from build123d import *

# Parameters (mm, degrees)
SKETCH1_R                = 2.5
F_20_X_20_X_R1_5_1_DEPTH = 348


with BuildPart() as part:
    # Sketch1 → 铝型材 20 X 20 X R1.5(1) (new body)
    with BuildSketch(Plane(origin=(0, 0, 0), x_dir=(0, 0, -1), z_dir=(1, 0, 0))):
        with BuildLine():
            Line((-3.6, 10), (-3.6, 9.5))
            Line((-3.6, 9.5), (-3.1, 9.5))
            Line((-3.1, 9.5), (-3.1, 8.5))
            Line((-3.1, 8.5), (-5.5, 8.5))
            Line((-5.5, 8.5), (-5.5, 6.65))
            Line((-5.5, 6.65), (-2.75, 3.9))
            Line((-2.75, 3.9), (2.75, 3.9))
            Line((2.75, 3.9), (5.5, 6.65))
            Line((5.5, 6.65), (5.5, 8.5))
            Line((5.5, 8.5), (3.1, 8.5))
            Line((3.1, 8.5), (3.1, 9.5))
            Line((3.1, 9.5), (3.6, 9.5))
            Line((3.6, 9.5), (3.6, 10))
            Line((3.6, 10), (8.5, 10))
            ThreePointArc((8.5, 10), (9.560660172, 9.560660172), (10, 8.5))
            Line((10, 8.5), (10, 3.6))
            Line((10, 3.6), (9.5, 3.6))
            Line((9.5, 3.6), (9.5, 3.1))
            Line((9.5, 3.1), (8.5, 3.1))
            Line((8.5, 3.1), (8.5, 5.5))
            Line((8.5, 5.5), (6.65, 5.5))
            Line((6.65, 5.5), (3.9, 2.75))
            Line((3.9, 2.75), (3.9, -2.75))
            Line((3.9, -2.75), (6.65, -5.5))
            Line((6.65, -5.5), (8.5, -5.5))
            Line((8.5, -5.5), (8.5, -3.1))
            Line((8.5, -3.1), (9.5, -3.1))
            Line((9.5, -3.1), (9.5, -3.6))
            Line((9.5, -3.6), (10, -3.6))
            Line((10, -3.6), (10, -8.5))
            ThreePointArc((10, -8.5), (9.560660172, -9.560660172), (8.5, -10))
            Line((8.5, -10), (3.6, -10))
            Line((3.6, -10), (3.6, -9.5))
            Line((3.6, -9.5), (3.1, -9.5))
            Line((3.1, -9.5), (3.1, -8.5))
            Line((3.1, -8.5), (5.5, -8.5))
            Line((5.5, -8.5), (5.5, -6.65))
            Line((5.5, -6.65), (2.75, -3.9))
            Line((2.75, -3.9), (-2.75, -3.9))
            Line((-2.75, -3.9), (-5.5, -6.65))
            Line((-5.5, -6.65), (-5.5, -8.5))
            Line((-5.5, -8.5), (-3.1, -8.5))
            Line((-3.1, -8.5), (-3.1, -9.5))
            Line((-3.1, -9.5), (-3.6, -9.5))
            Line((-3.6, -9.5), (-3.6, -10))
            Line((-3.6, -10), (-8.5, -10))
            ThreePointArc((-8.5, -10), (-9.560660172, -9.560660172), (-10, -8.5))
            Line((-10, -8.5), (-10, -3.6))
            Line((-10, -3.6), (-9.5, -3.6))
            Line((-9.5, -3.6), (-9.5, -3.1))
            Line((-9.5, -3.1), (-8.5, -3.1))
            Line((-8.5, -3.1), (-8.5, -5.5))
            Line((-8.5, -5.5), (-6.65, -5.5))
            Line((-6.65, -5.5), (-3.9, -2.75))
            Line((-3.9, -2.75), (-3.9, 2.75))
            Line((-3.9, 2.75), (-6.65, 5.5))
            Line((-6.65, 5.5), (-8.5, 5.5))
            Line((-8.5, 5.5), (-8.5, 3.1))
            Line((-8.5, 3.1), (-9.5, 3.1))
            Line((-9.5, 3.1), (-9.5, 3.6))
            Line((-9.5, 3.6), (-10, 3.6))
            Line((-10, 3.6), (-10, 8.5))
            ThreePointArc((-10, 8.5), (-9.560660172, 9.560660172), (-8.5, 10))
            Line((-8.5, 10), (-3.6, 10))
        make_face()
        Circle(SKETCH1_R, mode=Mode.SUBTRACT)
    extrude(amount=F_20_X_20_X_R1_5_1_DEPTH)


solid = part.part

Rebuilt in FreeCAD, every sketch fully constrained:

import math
import FreeCAD as App
import Part
import Sketcher
from FreeCAD import Vector

doc = App.newDocument("Part")
body = doc.addObject("PartDesign::Body", "Body")

sketch1 = body.newObject("Sketcher::SketchObject", "Sketch")
sketch1.AttachmentSupport = (doc.getObject("YZ_Plane"), [""])
sketch1.MapMode = "FlatFace"
sketch1.addGeometry(Part.LineSegment(Vector(9.5, 3.6, 0), Vector(10, 3.6, 0)), False)
sketch1.addGeometry(Part.LineSegment(Vector(10, 3.6, 0), Vector(10, 8.5, 0)), False)
sketch1.addGeometry(Part.ArcOfCircle(Part.Circle(Vector(8.5, 8.5, 0), Vector(0, 0, 1), 1.5), math.radians(0), math.radians(90)), False)
sketch1.addGeometry(Part.LineSegment(Vector(8.5, 10, 0), Vector(3.6, 10, 0)), False)
sketch1.addGeometry(Part.LineSegment(Vector(3.6, 10, 0), Vector(3.6, 9.5, 0)), False)
sketch1.addGeometry(Part.LineSegment(Vector(3.6, 9.5, 0), Vector(3.1, 9.5, 0)), False)
sketch1.addGeometry(Part.LineSegment(Vector(3.1, 9.5, 0), Vector(3.1, 8.5, 0)), False)
sketch1.addGeometry(Part.LineSegment(Vector(3.1, 8.5, 0), Vector(5.5, 8.5, 0)), False)
sketch1.addGeometry(Part.LineSegment(Vector(5.5, 8.5, 0), Vector(5.5, 6.7, 0)), False)
sketch1.addGeometry(Part.LineSegment(Vector(5.5, 6.7, 0), Vector(2.8, 3.9, 0)), False)
sketch1.addGeometry(Part.LineSegment(Vector(2.8, 3.9, 0), Vector(-2.8, 3.9, 0)), False)
sketch1.addGeometry(Part.LineSegment(Vector(-2.8, 3.9, 0), Vector(-5.5, 6.7, 0)), False)
sketch1.addGeometry(Part.LineSegment(Vector(-5.5, 6.7, 0), Vector(-5.5, 8.5, 0)), False)
sketch1.addGeometry(Part.LineSegment(Vector(-5.5, 8.5, 0), Vector(-3.1, 8.5, 0)), False)
sketch1.addGeometry(Part.LineSegment(Vector(-3.1, 8.5, 0), Vector(-3.1, 9.5, 0)), False)
sketch1.addGeometry(Part.LineSegment(Vector(-3.1, 9.5, 0), Vector(-3.6, 9.5, 0)), False)
sketch1.addGeometry(Part.LineSegment(Vector(-3.6, 9.5, 0), Vector(-3.6, 10, 0)), False)
sketch1.addGeometry(Part.LineSegment(Vector(-3.6, 10, 0), Vector(-8.5, 10, 0)), False)
sketch1.addGeometry(Part.ArcOfCircle(Part.Circle(Vector(-8.5, 8.5, 0), Vector(0, 0, 1), 1.5), math.radians(90), math.radians(180)), False)
sketch1.addGeometry(Part.LineSegment(Vector(-10, 8.5, 0), Vector(-10, 3.6, 0)), False)
sketch1.addGeometry(Part.LineSegment(Vector(-10, 3.6, 0), Vector(-9.5, 3.6, 0)), False)
sketch1.addGeometry(Part.LineSegment(Vector(-9.5, 3.6, 0), Vector(-9.5, 3.1, 0)), False)
sketch1.addGeometry(Part.LineSegment(Vector(-9.5, 3.1, 0), Vector(-8.5, 3.1, 0)), False)
sketch1.addGeometry(Part.LineSegment(Vector(-8.5, 3.1, 0), Vector(-8.5, 5.5, 0)), False)
sketch1.addGeometry(Part.LineSegment(Vector(-8.5, 5.5, 0), Vector(-6.7, 5.5, 0)), False)
sketch1.addGeometry(Part.LineSegment(Vector(-6.7, 5.5, 0), Vector(-3.9, 2.8, 0)), False)
sketch1.addGeometry(Part.LineSegment(Vector(-3.9, 2.8, 0), Vector(-3.9, -2.8, 0)), False)
sketch1.addGeometry(Part.LineSegment(Vector(-3.9, -2.8, 0), Vector(-6.7, -5.5, 0)), False)
sketch1.addGeometry(Part.LineSegment(Vector(-6.7, -5.5, 0), Vector(-8.5, -5.5, 0)), False)
sketch1.addGeometry(Part.LineSegment(Vector(-8.5, -5.5, 0), Vector(-8.5, -3.1, 0)), False)
sketch1.addGeometry(Part.LineSegment(Vector(-8.5, -3.1, 0), Vector(-9.5, -3.1, 0)), False)
sketch1.addGeometry(Part.LineSegment(Vector(-9.5, -3.1, 0), Vector(-9.5, -3.6, 0)), False)
sketch1.addGeometry(Part.LineSegment(Vector(-9.5, -3.6, 0), Vector(-10, -3.6, 0)), False)
sketch1.addGeometry(Part.LineSegment(Vector(-10, -3.6, 0), Vector(-10, -8.5, 0)), False)
sketch1.addGeometry(Part.ArcOfCircle(Part.Circle(Vector(-8.5, -8.5, 0), Vector(0, 0, 1), 1.5), math.radians(180), math.radians(270)), False)
sketch1.addGeometry(Part.LineSegment(Vector(-8.5, -10, 0), Vector(-3.6, -10, 0)), False)
sketch1.addGeometry(Part.LineSegment(Vector(-3.6, -10, 0), Vector(-3.6, -9.5, 0)), False)
sketch1.addGeometry(Part.LineSegment(Vector(-3.6, -9.5, 0), Vector(-3.1, -9.5, 0)), False)
sketch1.addGeometry(Part.LineSegment(Vector(-3.1, -9.5, 0), Vector(-3.1, -8.5, 0)), False)
sketch1.addGeometry(Part.LineSegment(Vector(-3.1, -8.5, 0), Vector(-5.5, -8.5, 0)), False)
sketch1.addGeometry(Part.LineSegment(Vector(-5.5, -8.5, 0), Vector(-5.5, -6.7, 0)), False)
sketch1.addGeometry(Part.LineSegment(Vector(-5.5, -6.7, 0), Vector(-2.8, -3.9, 0)), False)
sketch1.addGeometry(Part.LineSegment(Vector(-2.8, -3.9, 0), Vector(2.8, -3.9, 0)), False)
sketch1.addGeometry(Part.LineSegment(Vector(2.8, -3.9, 0), Vector(5.5, -6.7, 0)), False)
sketch1.addGeometry(Part.LineSegment(Vector(5.5, -6.7, 0), Vector(5.5, -8.5, 0)), False)
sketch1.addGeometry(Part.LineSegment(Vector(5.5, -8.5, 0), Vector(3.1, -8.5, 0)), False)
sketch1.addGeometry(Part.LineSegment(Vector(3.1, -8.5, 0), Vector(3.1, -9.5, 0)), False)
sketch1.addGeometry(Part.LineSegment(Vector(3.1, -9.5, 0), Vector(3.6, -9.5, 0)), False)
sketch1.addGeometry(Part.LineSegment(Vector(3.6, -9.5, 0), Vector(3.6, -10, 0)), False)
sketch1.addGeometry(Part.LineSegment(Vector(3.6, -10, 0), Vector(8.5, -10, 0)), False)
sketch1.addGeometry(Part.ArcOfCircle(Part.Circle(Vector(8.5, -8.5, 0), Vector(0, 0, 1), 1.5), math.radians(-90), math.radians(0)), False)
sketch1.addGeometry(Part.LineSegment(Vector(10, -8.5, 0), Vector(10, -3.6, 0)), False)
sketch1.addGeometry(Part.LineSegment(Vector(10, -3.6, 0), Vector(9.5, -3.6, 0)), False)
sketch1.addGeometry(Part.LineSegment(Vector(9.5, -3.6, 0), Vector(9.5, -3.1, 0)), False)
sketch1.addGeometry(Part.LineSegment(Vector(9.5, -3.1, 0), Vector(8.5, -3.1, 0)), False)
sketch1.addGeometry(Part.LineSegment(Vector(8.5, -3.1, 0), Vector(8.5, -5.5, 0)), False)
sketch1.addGeometry(Part.LineSegment(Vector(8.5, -5.5, 0), Vector(6.7, -5.5, 0)), False)
sketch1.addGeometry(Part.LineSegment(Vector(6.7, -5.5, 0), Vector(3.9, -2.8, 0)), False)
sketch1.addGeometry(Part.LineSegment(Vector(3.9, -2.8, 0), Vector(3.9, 2.8, 0)), False)
sketch1.addGeometry(Part.LineSegment(Vector(3.9, 2.8, 0), Vector(6.7, 5.5, 0)), False)
sketch1.addGeometry(Part.LineSegment(Vector(6.7, 5.5, 0), Vector(8.5, 5.5, 0)), False)
sketch1.addGeometry(Part.LineSegment(Vector(8.5, 5.5, 0), Vector(8.5, 3.1, 0)), False)
sketch1.addGeometry(Part.LineSegment(Vector(8.5, 3.1, 0), Vector(9.5, 3.1, 0)), False)
sketch1.addGeometry(Part.LineSegment(Vector(9.5, 3.1, 0), Vector(9.5, 3.6, 0)), False)
sketch1.addGeometry(Part.Circle(Vector(0, 0, 0), Vector(0, 0, 1), 2.5), False)
sketch1.addConstraint(Sketcher.Constraint("Coincident", 0, 2, 1, 1))
sketch1.addConstraint(Sketcher.Constraint("Tangent", 1, 2, 2, 1))
sketch1.addConstraint(Sketcher.Constraint("Tangent", 2, 2, 3, 1))
sketch1.addConstraint(Sketcher.Constraint("Coincident", 3, 2, 4, 1))
sketch1.addConstraint(Sketcher.Constraint("Coincident", 4, 2, 5, 1))
sketch1.addConstraint(Sketcher.Constraint("Coincident", 5, 2, 6, 1))
sketch1.addConstraint(Sketcher.Constraint("Coincident", 6, 2, 7, 1))
sketch1.addConstraint(Sketcher.Constraint("Coincident", 7, 2, 8, 1))
sketch1.addConstraint(Sketcher.Constraint("Coincident", 8, 2, 9, 1))
sketch1.addConstraint(Sketcher.Constraint("Coincident", 9, 2, 10, 1))
sketch1.addConstraint(Sketcher.Constraint("Coincident", 10, 2, 11, 1))
sketch1.addConstraint(Sketcher.Constraint("Coincident", 11, 2, 12, 1))
sketch1.addConstraint(Sketcher.Constraint("Coincident", 12, 2, 13, 1))
sketch1.addConstraint(Sketcher.Constraint("Coincident", 13, 2, 14, 1))
sketch1.addConstraint(Sketcher.Constraint("Coincident", 14, 2, 15, 1))
sketch1.addConstraint(Sketcher.Constraint("Coincident", 15, 2, 16, 1))
sketch1.addConstraint(Sketcher.Constraint("Coincident", 16, 2, 17, 1))
sketch1.addConstraint(Sketcher.Constraint("Tangent", 17, 2, 18, 1))
sketch1.addConstraint(Sketcher.Constraint("Tangent", 18, 2, 19, 1))
sketch1.addConstraint(Sketcher.Constraint("Coincident", 19, 2, 20, 1))
sketch1.addConstraint(Sketcher.Constraint("Coincident", 20, 2, 21, 1))
sketch1.addConstraint(Sketcher.Constraint("Coincident", 21, 2, 22, 1))
sketch1.addConstraint(Sketcher.Constraint("Coincident", 22, 2, 23, 1))
sketch1.addConstraint(Sketcher.Constraint("Coincident", 23, 2, 24, 1))
sketch1.addConstraint(Sketcher.Constraint("Coincident", 24, 2, 25, 1))
sketch1.addConstraint(Sketcher.Constraint("Coincident", 25, 2, 26, 1))
sketch1.addConstraint(Sketcher.Constraint("Coincident", 26, 2, 27, 1))
sketch1.addConstraint(Sketcher.Constraint("Coincident", 27, 2, 28, 1))
sketch1.addConstraint(Sketcher.Constraint("Coincident", 28, 2, 29, 1))
sketch1.addConstraint(Sketcher.Constraint("Coincident", 29, 2, 30, 1))
sketch1.addConstraint(Sketcher.Constraint("Coincident", 30, 2, 31, 1))
sketch1.addConstraint(Sketcher.Constraint("Coincident", 31, 2, 32, 1))
sketch1.addConstraint(Sketcher.Constraint("Coincident", 32, 2, 33, 1))
sketch1.addConstraint(Sketcher.Constraint("Tangent", 33, 2, 34, 1))
sketch1.addConstraint(Sketcher.Constraint("Tangent", 34, 2, 35, 1))
sketch1.addConstraint(Sketcher.Constraint("Coincident", 35, 2, 36, 1))
sketch1.addConstraint(Sketcher.Constraint("Coincident", 36, 2, 37, 1))
sketch1.addConstraint(Sketcher.Constraint("Coincident", 37, 2, 38, 1))
sketch1.addConstraint(Sketcher.Constraint("Coincident", 38, 2, 39, 1))
sketch1.addConstraint(Sketcher.Constraint("Coincident", 39, 2, 40, 1))
sketch1.addConstraint(Sketcher.Constraint("Coincident", 40, 2, 41, 1))
sketch1.addConstraint(Sketcher.Constraint("Coincident", 41, 2, 42, 1))
sketch1.addConstraint(Sketcher.Constraint("Coincident", 42, 2, 43, 1))
sketch1.addConstraint(Sketcher.Constraint("Coincident", 43, 2, 44, 1))
sketch1.addConstraint(Sketcher.Constraint("Coincident", 44, 2, 45, 1))
sketch1.addConstraint(Sketcher.Constraint("Coincident", 45, 2, 46, 1))
sketch1.addConstraint(Sketcher.Constraint("Coincident", 46, 2, 47, 1))
sketch1.addConstraint(Sketcher.Constraint("Coincident", 47, 2, 48, 1))
sketch1.addConstraint(Sketcher.Constraint("Coincident", 48, 2, 49, 1))
sketch1.addConstraint(Sketcher.Constraint("Tangent", 49, 2, 50, 1))
sketch1.addConstraint(Sketcher.Constraint("Tangent", 50, 2, 51, 1))
sketch1.addConstraint(Sketcher.Constraint("Coincident", 51, 2, 52, 1))
sketch1.addConstraint(Sketcher.Constraint("Coincident", 52, 2, 53, 1))
sketch1.addConstraint(Sketcher.Constraint("Coincident", 53, 2, 54, 1))
sketch1.addConstraint(Sketcher.Constraint("Coincident", 54, 2, 55, 1))
sketch1.addConstraint(Sketcher.Constraint("Coincident", 55, 2, 56, 1))
sketch1.addConstraint(Sketcher.Constraint("Coincident", 56, 2, 57, 1))
sketch1.addConstraint(Sketcher.Constraint("Coincident", 57, 2, 58, 1))
sketch1.addConstraint(Sketcher.Constraint("Coincident", 58, 2, 59, 1))
sketch1.addConstraint(Sketcher.Constraint("Coincident", 59, 2, 60, 1))
sketch1.addConstraint(Sketcher.Constraint("Coincident", 60, 2, 61, 1))
sketch1.addConstraint(Sketcher.Constraint("Coincident", 61, 2, 62, 1))
sketch1.addConstraint(Sketcher.Constraint("Coincident", 62, 2, 63, 1))
sketch1.addConstraint(Sketcher.Constraint("Coincident", 63, 2, 0, 1))
sketch1.addConstraint(Sketcher.Constraint("Horizontal", 0))
sketch1.addConstraint(Sketcher.Constraint("Vertical", 1))
sketch1.addConstraint(Sketcher.Constraint("Horizontal", 3))
sketch1.addConstraint(Sketcher.Constraint("Vertical", 4))
sketch1.addConstraint(Sketcher.Constraint("Horizontal", 5))
sketch1.addConstraint(Sketcher.Constraint("Vertical", 6))
sketch1.addConstraint(Sketcher.Constraint("Horizontal", 7))
sketch1.addConstraint(Sketcher.Constraint("Vertical", 8))
sketch1.addConstraint(Sketcher.Constraint("Horizontal", 10))
sketch1.addConstraint(Sketcher.Constraint("Vertical", 12))
sketch1.addConstraint(Sketcher.Constraint("Horizontal", 13))
sketch1.addConstraint(Sketcher.Constraint("Vertical", 14))
sketch1.addConstraint(Sketcher.Constraint("Horizontal", 15))
sketch1.addConstraint(Sketcher.Constraint("Vertical", 16))
sketch1.addConstraint(Sketcher.Constraint("Horizontal", 17))
sketch1.addConstraint(Sketcher.Constraint("Vertical", 19))
sketch1.addConstraint(Sketcher.Constraint("Horizontal", 20))
sketch1.addConstraint(Sketcher.Constraint("Vertical", 21))
sketch1.addConstraint(Sketcher.Constraint("Horizontal", 22))
sketch1.addConstraint(Sketcher.Constraint("Vertical", 23))
sketch1.addConstraint(Sketcher.Constraint("Horizontal", 24))
sketch1.addConstraint(Sketcher.Constraint("Vertical", 26))
sketch1.addConstraint(Sketcher.Constraint("Horizontal", 28))
sketch1.addConstraint(Sketcher.Constraint("Vertical", 29))
sketch1.addConstraint(Sketcher.Constraint("Horizontal", 30))
sketch1.addConstraint(Sketcher.Constraint("Vertical", 31))
sketch1.addConstraint(Sketcher.Constraint("Horizontal", 32))
sketch1.addConstraint(Sketcher.Constraint("Vertical", 33))
sketch1.addConstraint(Sketcher.Constraint("Horizontal", 35))
sketch1.addConstraint(Sketcher.Constraint("Vertical", 36))
sketch1.addConstraint(Sketcher.Constraint("Horizontal", 37))
sketch1.addConstraint(Sketcher.Constraint("Vertical", 38))
sketch1.addConstraint(Sketcher.Constraint("Horizontal", 39))
sketch1.addConstraint(Sketcher.Constraint("Vertical", 40))
sketch1.addConstraint(Sketcher.Constraint("Horizontal", 42))
sketch1.addConstraint(Sketcher.Constraint("Vertical", 44))
sketch1.addConstraint(Sketcher.Constraint("Horizontal", 45))
sketch1.addConstraint(Sketcher.Constraint("Vertical", 46))
sketch1.addConstraint(Sketcher.Constraint("Horizontal", 47))
sketch1.addConstraint(Sketcher.Constraint("Vertical", 48))
sketch1.addConstraint(Sketcher.Constraint("Horizontal", 49))
sketch1.addConstraint(Sketcher.Constraint("Vertical", 51))
sketch1.addConstraint(Sketcher.Constraint("Horizontal", 52))
sketch1.addConstraint(Sketcher.Constraint("Vertical", 53))
sketch1.addConstraint(Sketcher.Constraint("Horizontal", 54))
sketch1.addConstraint(Sketcher.Constraint("Vertical", 55))
sketch1.addConstraint(Sketcher.Constraint("Horizontal", 56))
sketch1.addConstraint(Sketcher.Constraint("Vertical", 58))
sketch1.addConstraint(Sketcher.Constraint("Horizontal", 60))
sketch1.addConstraint(Sketcher.Constraint("Vertical", 61))
sketch1.addConstraint(Sketcher.Constraint("Horizontal", 62))
sketch1.addConstraint(Sketcher.Constraint("Vertical", 63))
sketch1.addConstraint(Sketcher.Constraint("Coincident", 64, 3, -1, 1))
sketch1.addConstraint(Sketcher.Constraint("Equal", 2, 18))
sketch1.addConstraint(Sketcher.Constraint("Equal", 18, 34))
sketch1.addConstraint(Sketcher.Constraint("Equal", 34, 50))
sketch1.addConstraint(Sketcher.Constraint("Symmetric", 2, 3, 34, 3, -1, 1))
sketch1.addConstraint(Sketcher.Constraint("Symmetric", 18, 3, 50, 3, -1, 1))
sketch1.addConstraint(Sketcher.Constraint("Symmetric", 4, 2, 36, 2, -1, 1))
sketch1.addConstraint(Sketcher.Constraint("Symmetric", 6, 2, 38, 2, -1, 1))
sketch1.addConstraint(Sketcher.Constraint("Symmetric", 8, 2, 40, 2, -1, 1))
sketch1.addConstraint(Sketcher.Constraint("Symmetric", 9, 2, 41, 2, -1, 1))
sketch1.addConstraint(Sketcher.Constraint("Symmetric", 11, 2, 43, 2, -1, 1))
sketch1.addConstraint(Sketcher.Constraint("Symmetric", 13, 2, 45, 2, -1, 1))
sketch1.addConstraint(Sketcher.Constraint("Symmetric", 15, 2, 47, 2, -1, 1))
sketch1.addConstraint(Sketcher.Constraint("Symmetric", 20, 2, 52, 2, -1, 1))
sketch1.addConstraint(Sketcher.Constraint("Symmetric", 22, 2, 54, 2, -1, 1))
sketch1.addConstraint(Sketcher.Constraint("Symmetric", 24, 2, 56, 2, -1, 1))
sketch1.addConstraint(Sketcher.Constraint("Symmetric", 25, 2, 57, 2, -1, 1))
sketch1.addConstraint(Sketcher.Constraint("Symmetric", 27, 2, 59, 2, -1, 1))
sketch1.addConstraint(Sketcher.Constraint("Symmetric", 29, 2, 61, 2, -1, 1))
sketch1.addConstraint(Sketcher.Constraint("Symmetric", 31, 2, 63, 2, -1, 1))
sketch1.addConstraint(Sketcher.Constraint("Symmetric", 2, 3, 18, 3, -2))
sketch1.addConstraint(Sketcher.Constraint("Symmetric", 8, 2, 11, 2, -2))
sketch1.addConstraint(Sketcher.Constraint("Symmetric", 6, 2, 13, 2, -2))
sketch1.addConstraint(Sketcher.Constraint("Symmetric", 4, 2, 15, 2, -2))
sketch1.addConstraint(Sketcher.Constraint("Symmetric", 31, 2, 52, 2, -2))
sketch1.addConstraint(Sketcher.Constraint("Symmetric", 29, 2, 54, 2, -2))
sketch1.addConstraint(Sketcher.Constraint("Symmetric", 27, 2, 56, 2, -2))
sketch1.addConstraint(Sketcher.Constraint("Perpendicular", 9, 11))
sketch1.addConstraint(Sketcher.Constraint("Parallel", 11, 25))
sketch1.addConstraint(Sketcher.Constraint("Perpendicular", 25, 27))
sketch1.addConstraint(Sketcher.Constraint("Perpendicular", 41, 43))
sketch1.addConstraint(Sketcher.Constraint("Perpendicular", 57, 59))
sketch1.addConstraint(Sketcher.Constraint("Horizontal", 1, 2, 6, 2))
sketch1.addConstraint(Sketcher.Constraint("Horizontal", 26, 2, 57, 2))
sketch1.addConstraint(Sketcher.Constraint("Vertical", 17, 2, 22, 2))
sketch1.addConstraint(Sketcher.Constraint("Equal", 0, 5))
sketch1.addConstraint(Sketcher.Constraint("Equal", 49, 1))
sketch1.addConstraint(Sketcher.Constraint("Equal", 52, 4))
sketch1.addConstraint(Sketcher.Constraint("Equal", 60, 8))
sketch1.addConstraint(Sketcher.Constraint("Equal", 16, 21))
sketch1.addConstraint(Sketcher.Constraint("Equal", 45, 23))
sketch1.addConstraint(Sketcher.Constraint("Equal", 42, 26))
sketch1.addConstraint(Sketcher.Constraint("Equal", 11, 25))
sketch1.addConstraint(Sketcher.Constraint("Diameter", 64, 5.0))
sketch1.addConstraint(Sketcher.Constraint("Radius", 2, 1.5))
sketch1.addConstraint(Sketcher.Constraint("DistanceX", 22, 1, 22, 2, 1.0))
sketch1.addConstraint(Sketcher.Constraint("DistanceX", 3, 2, 3, 1, 4.9))
sketch1.addConstraint(Sketcher.Constraint("DistanceX", 7, 1, 7, 2, 2.4))
sketch1.addConstraint(Sketcher.Constraint("DistanceX", 10, 2, 10, 1, 5.5))
sketch1.addConstraint(Sketcher.Constraint("DistanceX", -1, 1, 0, 2, 10.0))
sketch1.addConstraint(Sketcher.Constraint("DistanceX", 24, 1, 24, 2, 1.85))
pad1 = body.newObject("PartDesign::Pad", "Pad")
pad1.Profile = sketch1
pad1.Length = 348

doc.recompute()
